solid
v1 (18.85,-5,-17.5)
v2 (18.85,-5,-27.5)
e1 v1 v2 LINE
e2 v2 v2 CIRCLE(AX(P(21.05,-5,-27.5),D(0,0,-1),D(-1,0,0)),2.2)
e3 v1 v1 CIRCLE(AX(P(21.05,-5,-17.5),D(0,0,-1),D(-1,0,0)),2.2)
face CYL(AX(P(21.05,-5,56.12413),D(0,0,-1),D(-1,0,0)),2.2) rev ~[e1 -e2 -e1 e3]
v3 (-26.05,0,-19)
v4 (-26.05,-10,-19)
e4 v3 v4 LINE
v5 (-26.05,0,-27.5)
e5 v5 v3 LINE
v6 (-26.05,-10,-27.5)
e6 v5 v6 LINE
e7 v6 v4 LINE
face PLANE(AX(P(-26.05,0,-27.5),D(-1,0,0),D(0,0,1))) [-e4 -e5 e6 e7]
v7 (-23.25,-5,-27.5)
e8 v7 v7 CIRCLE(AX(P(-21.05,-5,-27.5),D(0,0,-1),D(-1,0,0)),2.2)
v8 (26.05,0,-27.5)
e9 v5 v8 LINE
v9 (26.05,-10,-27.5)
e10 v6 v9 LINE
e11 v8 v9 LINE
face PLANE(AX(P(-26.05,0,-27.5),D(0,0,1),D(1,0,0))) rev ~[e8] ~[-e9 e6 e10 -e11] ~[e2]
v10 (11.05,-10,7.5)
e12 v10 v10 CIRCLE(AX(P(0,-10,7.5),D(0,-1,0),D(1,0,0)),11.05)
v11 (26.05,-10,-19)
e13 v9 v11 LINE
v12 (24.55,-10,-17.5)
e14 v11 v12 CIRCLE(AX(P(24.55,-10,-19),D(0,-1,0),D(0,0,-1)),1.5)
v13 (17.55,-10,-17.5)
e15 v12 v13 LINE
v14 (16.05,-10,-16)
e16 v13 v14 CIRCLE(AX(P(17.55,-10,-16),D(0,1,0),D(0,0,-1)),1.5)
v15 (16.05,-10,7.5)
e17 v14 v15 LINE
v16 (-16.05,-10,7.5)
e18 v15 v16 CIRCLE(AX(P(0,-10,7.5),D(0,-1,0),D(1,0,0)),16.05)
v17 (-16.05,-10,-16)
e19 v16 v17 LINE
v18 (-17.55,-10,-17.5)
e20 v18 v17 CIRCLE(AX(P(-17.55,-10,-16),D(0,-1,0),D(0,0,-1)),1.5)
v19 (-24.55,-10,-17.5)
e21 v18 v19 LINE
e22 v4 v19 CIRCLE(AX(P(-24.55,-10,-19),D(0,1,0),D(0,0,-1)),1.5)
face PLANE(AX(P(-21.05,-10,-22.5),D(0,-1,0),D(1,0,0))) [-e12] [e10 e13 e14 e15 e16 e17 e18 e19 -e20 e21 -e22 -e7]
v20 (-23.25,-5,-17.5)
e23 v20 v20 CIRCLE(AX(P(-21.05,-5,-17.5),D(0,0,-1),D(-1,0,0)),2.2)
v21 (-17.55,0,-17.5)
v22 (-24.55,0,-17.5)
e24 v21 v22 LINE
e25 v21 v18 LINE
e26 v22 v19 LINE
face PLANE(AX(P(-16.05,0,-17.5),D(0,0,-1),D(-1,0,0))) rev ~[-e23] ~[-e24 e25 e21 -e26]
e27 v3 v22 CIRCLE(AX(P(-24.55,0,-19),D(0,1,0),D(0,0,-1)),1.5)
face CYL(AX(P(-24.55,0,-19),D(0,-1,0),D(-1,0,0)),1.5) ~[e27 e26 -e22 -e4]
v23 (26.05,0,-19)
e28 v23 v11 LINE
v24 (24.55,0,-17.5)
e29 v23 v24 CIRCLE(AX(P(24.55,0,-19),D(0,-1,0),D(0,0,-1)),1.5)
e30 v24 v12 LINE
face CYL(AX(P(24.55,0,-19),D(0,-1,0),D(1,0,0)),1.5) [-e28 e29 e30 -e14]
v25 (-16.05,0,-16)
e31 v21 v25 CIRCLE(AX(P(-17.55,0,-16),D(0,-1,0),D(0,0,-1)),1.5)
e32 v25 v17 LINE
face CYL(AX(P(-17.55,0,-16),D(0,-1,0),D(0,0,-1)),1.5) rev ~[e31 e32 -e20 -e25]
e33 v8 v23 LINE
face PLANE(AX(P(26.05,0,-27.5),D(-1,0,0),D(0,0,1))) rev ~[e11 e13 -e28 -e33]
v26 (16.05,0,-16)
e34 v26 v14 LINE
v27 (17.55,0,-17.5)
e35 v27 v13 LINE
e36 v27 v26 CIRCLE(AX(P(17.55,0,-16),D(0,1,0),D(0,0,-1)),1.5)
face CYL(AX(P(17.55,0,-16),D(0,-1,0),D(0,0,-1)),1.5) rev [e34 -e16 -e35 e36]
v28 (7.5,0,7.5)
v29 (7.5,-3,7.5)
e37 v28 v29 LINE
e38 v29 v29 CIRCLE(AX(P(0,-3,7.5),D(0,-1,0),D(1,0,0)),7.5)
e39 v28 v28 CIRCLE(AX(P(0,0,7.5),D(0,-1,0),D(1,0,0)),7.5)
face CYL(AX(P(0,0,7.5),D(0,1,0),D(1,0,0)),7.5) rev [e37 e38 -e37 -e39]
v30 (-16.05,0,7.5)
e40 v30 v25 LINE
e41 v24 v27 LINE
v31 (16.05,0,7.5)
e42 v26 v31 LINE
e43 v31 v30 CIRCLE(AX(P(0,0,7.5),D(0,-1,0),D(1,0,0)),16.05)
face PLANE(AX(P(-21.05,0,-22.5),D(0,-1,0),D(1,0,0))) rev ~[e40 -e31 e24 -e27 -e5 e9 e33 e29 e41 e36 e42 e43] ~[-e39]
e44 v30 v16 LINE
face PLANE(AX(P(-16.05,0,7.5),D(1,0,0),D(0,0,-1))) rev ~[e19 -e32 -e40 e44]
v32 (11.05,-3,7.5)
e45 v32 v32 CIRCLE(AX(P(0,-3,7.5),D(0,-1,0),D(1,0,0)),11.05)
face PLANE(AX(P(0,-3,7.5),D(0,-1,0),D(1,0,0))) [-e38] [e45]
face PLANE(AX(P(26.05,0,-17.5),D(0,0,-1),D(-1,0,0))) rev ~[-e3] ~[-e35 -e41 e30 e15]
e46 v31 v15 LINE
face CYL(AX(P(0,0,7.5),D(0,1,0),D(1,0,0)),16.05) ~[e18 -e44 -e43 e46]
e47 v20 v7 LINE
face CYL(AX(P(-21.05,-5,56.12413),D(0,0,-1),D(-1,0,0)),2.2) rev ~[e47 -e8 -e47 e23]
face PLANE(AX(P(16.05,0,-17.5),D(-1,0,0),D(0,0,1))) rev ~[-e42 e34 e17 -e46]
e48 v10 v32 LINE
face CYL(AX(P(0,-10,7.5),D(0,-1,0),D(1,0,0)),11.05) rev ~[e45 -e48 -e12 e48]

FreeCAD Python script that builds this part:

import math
import FreeCAD as App
import Part
import Sketcher
from FreeCAD import Vector


def edges_at(feature, points):
    """Names of the edges that pass closest to the given points."""
    edges = feature.Shape.Edges
    near = lambda p: min(range(len(edges)), key=lambda i: edges[i].distToShape(Part.Vertex(*p))[0])
    return sorted({f"Edge{near(p) + 1}" for p in points})

doc = App.newDocument("Part")
params = doc.addObject("Spreadsheet::Sheet", "Params")
for row, (alias, value) in enumerate([
    ("sketch1_diameter", "15 mm"),
    ("sketch1_width", "10 mm"),
    ("sketch1_height", "25 mm"),
    ("sketch1_radius", "16.05 mm"),
    ("pad1_length", "10 mm"),
    ("sketch2_diameter", "15 mm"),
    ("sketch2_diameter2", "22.1 mm"),
    ("pocket1_length", "7 mm"),
    ("sketch3_diameter", "4.4 mm"),
    ("hole_diameter", "4.4 mm"),
    ("fillet_radius", "1.5 mm"),
], start=1):
    params.set(f"A{row}", alias)
    params.set(f"B{row}", "=" + value)
    params.setAlias(f"B{row}", alias)

body = doc.addObject("PartDesign::Body", "Body")

# Sketch on XZ plane
sketch1 = doc.addObject("Sketcher::SketchObject", "Sketch")
body.addObject(sketch1)
sketch1.AttachmentSupport = (doc.XZ_Plane, [""])
sketch1.MapMode = "FlatFace"
sketch1.addGeometry([
    Part.LineSegment(Vector(-26, -18, 0), Vector(-26, -28, 0)),  # 0
    Part.LineSegment(Vector(-26, -28, 0), Vector(26, -28, 0)),  # 1
    Part.LineSegment(Vector(26, -28, 0), Vector(26, -18, 0)),  # 2
    Part.LineSegment(Vector(26, -18, 0), Vector(16, -18, 0)),  # 3
    Part.LineSegment(Vector(16, -18, 0), Vector(16, 8, 0)),  # 4
    Part.ArcOfCircle(Part.Circle(Vector(0, 8, 0), Vector(0, 0, 1), 16), math.radians(0), math.radians(180)),  # 5
    Part.LineSegment(Vector(-16, 8, 0), Vector(-16, -18, 0)),  # 6
    Part.LineSegment(Vector(-16, -18, 0), Vector(-26, -18, 0)),  # 7
    Part.Circle(Vector(0, 8, 0), Vector(0, 0, 1), 8),  # 8
], False)
sketch1.addConstraint([
    Sketcher.Constraint("Coincident", 0, 2, 1, 1),
    Sketcher.Constraint("Coincident", 1, 2, 2, 1),
    Sketcher.Constraint("Coincident", 2, 2, 3, 1),
    Sketcher.Constraint("Coincident", 3, 2, 4, 1),
    Sketcher.Constraint("Tangent", 4, 2, 5, 1),
    Sketcher.Constraint("Tangent", 5, 2, 6, 1),
    Sketcher.Constraint("Coincident", 6, 2, 7, 1),
    Sketcher.Constraint("Coincident", 7, 2, 0, 1),
    Sketcher.Constraint("Vertical", 0),
    Sketcher.Constraint("Horizontal", 1),
    Sketcher.Constraint("Vertical", 2),
    Sketcher.Constraint("Horizontal", 3),
    Sketcher.Constraint("Vertical", 4),
    Sketcher.Constraint("Vertical", 6),
    Sketcher.Constraint("Horizontal", 7),
    Sketcher.Constraint("Coincident", 8, 3, 5, 3),
    Sketcher.Constraint("Symmetric", 3, 2, 6, 2, -2),
    Sketcher.Constraint("Equal", 3, 7),
    Sketcher.Constraint("Equal", 7, 0),
    Sketcher.Constraint("Diameter", 8, 15.0),
    Sketcher.Constraint("DistanceX", 3, 2, 3, 1, 10.0),
    Sketcher.Constraint("DistanceY", 4, 1, 4, 2, 25.0),
    Sketcher.Constraint("Radius", 5, 16.05),
    Sketcher.Constraint("DistanceY", -1, 1, 5, 3, 7.5),
])
sketch1.setExpression("Constraints[19]", "Params.sketch1_diameter")
sketch1.setExpression("Constraints[20]", "Params.sketch1_width")
sketch1.setExpression("Constraints[21]", "Params.sketch1_height")
sketch1.setExpression("Constraints[22]", "Params.sketch1_radius")
pad1 = doc.addObject("PartDesign::Pad", "Pad")
body.addObject(pad1)
pad1.Profile = sketch1
pad1.setExpression("Length", "Params.pad1_length")

# Sketch on XZ plane
sketch2 = doc.addObject("Sketcher::SketchObject", "Sketch001")
body.addObject(sketch2)
sketch2.AttachmentSupport = (doc.XZ_Plane, [""])
sketch2.MapMode = "FlatFace"
sketch2.AttachmentOffset = App.Placement(Vector(0, 0, 10), App.Rotation())
sketch2.addGeometry([
    Part.Circle(Vector(0, 8, 0), Vector(0, 0, 1), 11),
    Part.Circle(Vector(0, 8, 0), Vector(0, 0, 1), 8),
], False)
sketch2.addConstraint([
    Sketcher.Constraint("Coincident", 1, 3, 0, 3),
    Sketcher.Constraint("PointOnObject", 0, 3, -2),
    Sketcher.Constraint("Diameter", 1, 15.0),
    Sketcher.Constraint("Diameter", 0, 22.1),
    Sketcher.Constraint("DistanceY", -1, 1, 0, 3, 7.5),
])
sketch2.setExpression("Constraints[2]", "Params.sketch2_diameter")
sketch2.setExpression("Constraints[3]", "Params.sketch2_diameter2")
pocket1 = doc.addObject("PartDesign::Pocket", "Pocket")
body.addObject(pocket1)
pocket1.Profile = sketch2
pocket1.setExpression("Length", "Params.pocket1_length")

# Sketch on XY plane
sketch3 = doc.addObject("Sketcher::SketchObject", "Sketch002")
body.addObject(sketch3)
sketch3.AttachmentSupport = (doc.XY_Plane, [""])
sketch3.MapMode = "FlatFace"
sketch3.AttachmentOffset = App.Placement(Vector(0, 0, -17.5), App.Rotation())
sketch3.addGeometry([
    Part.Circle(Vector(-21.1, -5, 0), Vector(0, 0, 1), 2.2),
    Part.Circle(Vector(21.1, -5, 0), Vector(0, 0, 1), 2.2),
], False)
sketch3.addConstraint([
    Sketcher.Constraint("Equal", 0, 1),
    Sketcher.Constraint("Symmetric", 0, 3, 1, 3, -2),
    Sketcher.Constraint("Diameter", 0, 4.4),
    Sketcher.Constraint("DistanceY", 0, 3, -1, 1, 5.0),
    Sketcher.Constraint("DistanceX", 0, 3, 1, 3, 42.1),
])
sketch3.setExpression("Constraints[2]", "Params.sketch3_diameter")
doc.recompute()
hole = doc.addObject("PartDesign::Hole", "Hole")
body.addObject(hole)
hole.Profile = sketch3
hole.ThreadType = "None"
hole.setExpression("Diameter", "Params.hole_diameter")
hole.DepthType = "ThroughAll"
doc.recompute()

fillet = doc.addObject("PartDesign::Fillet", "Fillet")
body.addObject(fillet)
fillet.Base = (hole, edges_at(hole, [
    (-16.05, -5, -17.5),
    (-26.05, -5, -17.5),
    (16.05, -5, -17.5),
    (26.05, -5, -17.5),
]))
fillet.setExpression("Radius", "Params.fillet_radius")

doc.recompute()
